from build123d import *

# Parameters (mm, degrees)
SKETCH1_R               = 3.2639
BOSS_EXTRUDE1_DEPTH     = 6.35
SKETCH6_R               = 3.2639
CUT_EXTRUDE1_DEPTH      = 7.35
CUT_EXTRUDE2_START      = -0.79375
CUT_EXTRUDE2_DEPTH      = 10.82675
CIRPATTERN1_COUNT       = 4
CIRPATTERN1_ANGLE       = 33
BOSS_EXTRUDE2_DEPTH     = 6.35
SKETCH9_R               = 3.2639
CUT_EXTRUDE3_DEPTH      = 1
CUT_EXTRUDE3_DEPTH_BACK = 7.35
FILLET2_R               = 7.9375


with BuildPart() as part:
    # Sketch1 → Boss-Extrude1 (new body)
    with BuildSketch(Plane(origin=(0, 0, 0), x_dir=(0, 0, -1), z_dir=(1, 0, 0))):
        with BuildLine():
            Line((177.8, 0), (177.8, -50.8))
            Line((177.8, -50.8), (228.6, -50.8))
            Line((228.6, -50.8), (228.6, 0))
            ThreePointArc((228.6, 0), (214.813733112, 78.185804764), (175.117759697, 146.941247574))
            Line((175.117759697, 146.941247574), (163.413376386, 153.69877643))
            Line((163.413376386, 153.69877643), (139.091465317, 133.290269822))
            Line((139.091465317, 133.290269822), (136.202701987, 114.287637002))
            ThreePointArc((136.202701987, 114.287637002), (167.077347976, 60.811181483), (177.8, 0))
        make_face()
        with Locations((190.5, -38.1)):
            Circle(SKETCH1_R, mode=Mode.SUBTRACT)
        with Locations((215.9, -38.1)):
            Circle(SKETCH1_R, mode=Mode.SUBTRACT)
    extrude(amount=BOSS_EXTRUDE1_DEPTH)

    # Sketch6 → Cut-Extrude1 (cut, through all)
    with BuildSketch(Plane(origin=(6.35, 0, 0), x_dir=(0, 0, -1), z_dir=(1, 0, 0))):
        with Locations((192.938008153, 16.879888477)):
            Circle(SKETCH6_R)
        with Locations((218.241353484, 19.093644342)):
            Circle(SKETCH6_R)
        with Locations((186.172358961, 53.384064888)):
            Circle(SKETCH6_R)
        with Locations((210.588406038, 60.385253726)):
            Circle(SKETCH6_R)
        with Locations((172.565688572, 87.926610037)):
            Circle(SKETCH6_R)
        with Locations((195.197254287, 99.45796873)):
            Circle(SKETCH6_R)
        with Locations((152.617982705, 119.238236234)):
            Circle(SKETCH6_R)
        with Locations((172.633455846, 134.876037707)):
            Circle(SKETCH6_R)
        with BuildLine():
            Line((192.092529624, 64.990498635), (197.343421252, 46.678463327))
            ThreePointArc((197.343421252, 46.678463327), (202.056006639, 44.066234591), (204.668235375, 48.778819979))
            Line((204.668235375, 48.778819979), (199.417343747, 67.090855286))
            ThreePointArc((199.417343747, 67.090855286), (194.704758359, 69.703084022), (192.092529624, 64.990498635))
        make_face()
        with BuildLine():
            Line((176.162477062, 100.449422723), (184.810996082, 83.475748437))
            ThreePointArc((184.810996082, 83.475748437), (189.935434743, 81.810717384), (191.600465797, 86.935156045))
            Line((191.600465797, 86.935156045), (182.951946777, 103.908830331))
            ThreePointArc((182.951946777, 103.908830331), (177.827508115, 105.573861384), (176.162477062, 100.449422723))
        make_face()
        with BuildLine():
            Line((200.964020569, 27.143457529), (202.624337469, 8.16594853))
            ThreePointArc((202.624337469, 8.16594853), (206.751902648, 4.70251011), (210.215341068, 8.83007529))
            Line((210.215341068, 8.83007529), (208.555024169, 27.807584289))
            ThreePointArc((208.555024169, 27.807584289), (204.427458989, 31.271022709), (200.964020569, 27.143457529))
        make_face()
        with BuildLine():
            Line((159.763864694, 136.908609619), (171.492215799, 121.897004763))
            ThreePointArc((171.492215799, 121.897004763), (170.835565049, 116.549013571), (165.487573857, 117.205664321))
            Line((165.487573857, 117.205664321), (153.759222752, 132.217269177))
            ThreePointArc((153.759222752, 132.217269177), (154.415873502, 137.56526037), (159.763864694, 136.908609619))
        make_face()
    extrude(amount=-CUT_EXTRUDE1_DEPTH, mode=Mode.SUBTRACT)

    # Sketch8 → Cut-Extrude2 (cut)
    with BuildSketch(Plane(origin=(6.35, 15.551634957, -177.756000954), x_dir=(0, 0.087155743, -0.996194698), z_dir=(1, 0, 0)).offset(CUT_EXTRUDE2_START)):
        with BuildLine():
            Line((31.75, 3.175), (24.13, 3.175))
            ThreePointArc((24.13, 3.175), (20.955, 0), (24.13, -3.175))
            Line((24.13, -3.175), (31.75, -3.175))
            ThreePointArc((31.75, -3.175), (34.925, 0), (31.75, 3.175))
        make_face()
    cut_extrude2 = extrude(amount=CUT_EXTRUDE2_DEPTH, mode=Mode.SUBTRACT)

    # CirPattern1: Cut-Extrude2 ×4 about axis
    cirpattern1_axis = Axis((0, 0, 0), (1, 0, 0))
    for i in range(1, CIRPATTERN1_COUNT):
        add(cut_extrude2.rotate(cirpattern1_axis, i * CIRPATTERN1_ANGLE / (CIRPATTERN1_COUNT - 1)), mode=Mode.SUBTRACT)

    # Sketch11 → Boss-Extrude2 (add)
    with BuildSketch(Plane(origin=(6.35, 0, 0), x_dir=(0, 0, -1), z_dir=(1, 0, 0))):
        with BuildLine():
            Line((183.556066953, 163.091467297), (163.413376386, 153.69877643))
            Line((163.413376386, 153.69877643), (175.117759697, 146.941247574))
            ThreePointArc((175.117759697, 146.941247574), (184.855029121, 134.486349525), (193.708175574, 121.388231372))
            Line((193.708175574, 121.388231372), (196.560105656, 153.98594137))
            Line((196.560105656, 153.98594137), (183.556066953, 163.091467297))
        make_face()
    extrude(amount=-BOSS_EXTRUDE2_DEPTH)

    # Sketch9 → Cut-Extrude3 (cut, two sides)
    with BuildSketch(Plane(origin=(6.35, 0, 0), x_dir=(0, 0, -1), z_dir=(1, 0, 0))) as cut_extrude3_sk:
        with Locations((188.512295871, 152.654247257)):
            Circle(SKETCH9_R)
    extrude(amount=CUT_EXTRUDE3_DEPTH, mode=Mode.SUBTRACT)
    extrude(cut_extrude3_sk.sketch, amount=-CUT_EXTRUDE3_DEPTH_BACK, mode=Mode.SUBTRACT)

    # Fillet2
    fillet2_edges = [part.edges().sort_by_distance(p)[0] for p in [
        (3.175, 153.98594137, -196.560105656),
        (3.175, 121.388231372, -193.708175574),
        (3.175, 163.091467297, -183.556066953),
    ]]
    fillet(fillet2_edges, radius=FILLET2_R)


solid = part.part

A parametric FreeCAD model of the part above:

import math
import FreeCAD as App
import Part
import Sketcher

V = App.Vector
Q = App.Units.Quantity


def edges_at(feature, points):
    """Names of the edges that pass closest to the given points."""
    edges = feature.Shape.Edges
    near = lambda p: min(range(len(edges)), key=lambda i: edges[i].distToShape(Part.Vertex(*p))[0])
    return sorted({f"Edge{near(p) + 1}" for p in points})

doc = App.newDocument("Part")
body = doc.addObject("PartDesign::Body", "Body")

sketch1 = doc.addObject("Sketcher::SketchObject", "Sketch")
body.addObject(sketch1)
sketch1.AttachmentSupport = (doc.YZ_Plane, [""])
sketch1.MapMode = "FlatFace"
sketch1.addGeometry([
    Part.LineSegment(V(0, -177.8, 0), V(-50.8, -177.8, 0)),
    Part.LineSegment(V(-50.8, -177.8, 0), V(-50.8, -228.6, 0)),
    Part.LineSegment(V(-50.8, -228.6, 0), V(0, -228.6, 0)),
    Part.ArcOfCircle(Part.Circle(V(0, 0, 0), V(0, 0, 1), 228.6), math.radians(-90), math.radians(-50)),
    Part.LineSegment(V(146.9, -175.1, 0), V(153.7, -163.4, 0)),
    Part.LineSegment(V(153.7, -163.4, 0), V(133.3, -139.1, 0)),
    Part.LineSegment(V(133.3, -139.1, 0), V(114.3, -136.2, 0)),
    Part.ArcOfCircle(Part.Circle(V(0, 0, 0), V(0, 0, 1), 177.8), math.radians(-90), math.radians(-50)),
    Part.Circle(V(-38.1, -190.5, 0), V(0, 0, 1), 3.3),
    Part.Circle(V(-38.1, -215.9, 0), V(0, 0, 1), 3.3),
], False)
sketch1.addConstraint([
    Sketcher.Constraint("Coincident", 0, 2, 1, 1),
    Sketcher.Constraint("Coincident", 1, 2, 2, 1),
    Sketcher.Constraint("Tangent", 2, 2, 3, 1),
    Sketcher.Constraint("Coincident", 3, 2, 4, 1),
    Sketcher.Constraint("Coincident", 4, 2, 5, 1),
    Sketcher.Constraint("Coincident", 5, 2, 6, 1),
    Sketcher.Constraint("Coincident", 6, 2, 7, 2),
    Sketcher.Constraint("Tangent", 7, 1, 0, 1),
    Sketcher.Constraint("Horizontal", 0),
    Sketcher.Constraint("Vertical", 1),
    Sketcher.Constraint("Horizontal", 2),
    Sketcher.Constraint("Coincident", 3, 3, -1, 1),
    Sketcher.Constraint("Coincident", 7, 3, -1, 1),
    Sketcher.Constraint("Equal", 8, 9),
    Sketcher.Constraint("Vertical", 8, 3, 9, 3),
    Sketcher.Constraint("Equal", 2, 1),
    Sketcher.Constraint("Radius", 3, Q("9 in")),
    Sketcher.Constraint("Radius", 7, Q("7 in")),
    Sketcher.Constraint("Diameter", 8, Q("0.257 in")),
    Sketcher.Constraint("Angle", 4, Q("60 deg")),
    Sketcher.Constraint("Angle", 5, Q("130 deg")),
    Sketcher.Constraint("DistanceY", 9, 3, 8, 3, Q("1 in")),
    Sketcher.Constraint("DistanceX", 8, 3, -1, 1, Q("1.5 in")),
    Sketcher.Constraint("DistanceY", 8, 3, -1, 1, Q("7.5 in")),
    Sketcher.Constraint("Distance", 5, Q("1.25 in")),
    Sketcher.Constraint("DistanceY", 3, 2, -1, 1, Q("6.8944 in")),
    Sketcher.Constraint("DistanceY", 6, 2, -1, 1, 136.202702),
    Sketcher.Constraint("DistanceX", -1, 1, 5, 2, 133.29027),
])
pad1 = doc.addObject("PartDesign::Pad", "Pad")
body.addObject(pad1)
pad1.Profile = sketch1
pad1.Length = Q("0.25 in")

sketch2 = doc.addObject("Sketcher::SketchObject", "Sketch001")
body.addObject(sketch2)
sketch2.AttachmentSupport = (doc.YZ_Plane, [""])
sketch2.MapMode = "FlatFace"
sketch2.AttachmentOffset = App.Placement(V(0, 0, 0.25 * 25.4), App.Rotation())
sketch2.addGeometry([
    Part.Circle(V(16.9, -192.9, 0), V(0, 0, 1), 3.3),
    Part.Circle(V(19.1, -218.2, 0), V(0, 0, 1), 3.3),
    Part.Circle(V(53.4, -186.2, 0), V(0, 0, 1), 3.3),
    Part.Circle(V(60.4, -210.6, 0), V(0, 0, 1), 3.3),
    Part.Circle(V(87.9, -172.6, 0), V(0, 0, 1), 3.3),
    Part.Circle(V(99.5, -195.2, 0), V(0, 0, 1), 3.3),
    Part.Circle(V(119.2, -152.6, 0), V(0, 0, 1), 3.3),
    Part.Circle(V(134.9, -172.6, 0), V(0, 0, 1), 3.3),
    Part.LineSegment(V(65, -192.1, 0), V(46.7, -197.3, 0)),
    Part.ArcOfCircle(Part.Circle(V(47.7, -201, 0), V(0, 0, 1), 3.8), math.radians(106), math.radians(286)),
    Part.LineSegment(V(48.8, -204.7, 0), V(67.1, -199.4, 0)),
    Part.ArcOfCircle(Part.Circle(V(66, -195.8, 0), V(0, 0, 1), 3.8), math.radians(-74), math.radians(106)),
    Part.LineSegment(V(100.4, -176.2, 0), V(83.5, -184.8, 0)),
    Part.ArcOfCircle(Part.Circle(V(85.2, -188.2, 0), V(0, 0, 1), 3.8), math.radians(117), math.radians(297)),
    Part.LineSegment(V(86.9, -191.6, 0), V(103.9, -183, 0)),
    Part.ArcOfCircle(Part.Circle(V(102.2, -179.6, 0), V(0, 0, 1), 3.8), math.radians(-63), math.radians(117)),
    Part.LineSegment(V(27.1, -201, 0), V(8.2, -202.6, 0)),
    Part.ArcOfCircle(Part.Circle(V(8.5, -206.4, 0), V(0, 0, 1), 3.8), math.radians(95), math.radians(275)),
    Part.LineSegment(V(8.8, -210.2, 0), V(27.8, -208.6, 0)),
    Part.ArcOfCircle(Part.Circle(V(27.5, -204.8, 0), V(0, 0, 1), 3.8), math.radians(-85), math.radians(95)),
    Part.LineSegment(V(121.9, -171.5, 0), V(136.9, -159.8, 0)),
    Part.ArcOfCircle(Part.Circle(V(134.6, -156.8, 0), V(0, 0, 1), 3.8), math.radians(-52), math.radians(128)),
    Part.LineSegment(V(132.2, -153.8, 0), V(117.2, -165.5, 0)),
    Part.ArcOfCircle(Part.Circle(V(119.6, -168.5, 0), V(0, 0, 1), 3.8), math.radians(128), math.radians(308)),
], False)
sketch2.addConstraint([
    Sketcher.Constraint("Tangent", 8, 2, 9, 1),
    Sketcher.Constraint("Tangent", 9, 2, 10, 1),
    Sketcher.Constraint("Tangent", 10, 2, 11, 1),
    Sketcher.Constraint("Tangent", 11, 2, 8, 1),
    Sketcher.Constraint("Tangent", 12, 2, 13, 1),
    Sketcher.Constraint("Tangent", 13, 2, 14, 1),
    Sketcher.Constraint("Tangent", 14, 2, 15, 1),
    Sketcher.Constraint("Tangent", 15, 2, 12, 1),
    Sketcher.Constraint("Tangent", 16, 2, 17, 1),
    Sketcher.Constraint("Tangent", 17, 2, 18, 1),
    Sketcher.Constraint("Tangent", 18, 2, 19, 1),
    Sketcher.Constraint("Tangent", 19, 2, 16, 1),
    Sketcher.Constraint("Tangent", 20, 2, 21, 1),
    Sketcher.Constraint("Tangent", 21, 2, 22, 1),
    Sketcher.Constraint("Tangent", 22, 2, 23, 1),
    Sketcher.Constraint("Tangent", 23, 2, 20, 1),
    Sketcher.Constraint("Equal", 0, 1),
    Sketcher.Constraint("Equal", 1, 2),
    Sketcher.Constraint("Equal", 2, 3),
    Sketcher.Constraint("Equal", 3, 4),
    Sketcher.Constraint("Equal", 4, 5),
    Sketcher.Constraint("Equal", 5, 6),
    Sketcher.Constraint("Equal", 6, 7),
    Sketcher.Constraint("Equal", 9, 11),
    Sketcher.Constraint("Equal", 11, 13),
    Sketcher.Constraint("Equal", 13, 15),
    Sketcher.Constraint("Equal", 15, 17),
    Sketcher.Constraint("Equal", 17, 19),
    Sketcher.Constraint("Equal", 19, 21),
    Sketcher.Constraint("Equal", 21, 23),
    Sketcher.Constraint("Equal", 10, 12),
    Sketcher.Constraint("Equal", 14, 16),
    Sketcher.Constraint("Equal", 18, 20),
    Sketcher.Constraint("Radius", 9, Q("0.15 in")),
    Sketcher.Constraint("Diameter", 0, Q("0.257 in")),
    Sketcher.Constraint("Angle", 8, Q("-164 deg")),
    Sketcher.Constraint("Angle", 12, Q("-153 deg")),
    Sketcher.Constraint("Angle", 16, Q("-175 deg")),
    Sketcher.Constraint("Angle", 20, Q("38 deg")),
    Sketcher.Constraint("Distance", 8, Q("0.75 in")),
    Sketcher.Constraint("DistanceX", 8, 2, 2, 3, Q("0.2640001 in")),
    Sketcher.Constraint("DistanceX", 3, 3, 10, 2, Q("0.2640001 in")),
    Sketcher.Constraint("DistanceY", 3, 3, 6, 3, Q("2.2823001 in")),
    Sketcher.Constraint("DistanceX", -1, 1, 11, 2, 64.990499),
    Sketcher.Constraint("DistanceY", 1, 3, 5, 3, 23.044099),
    Sketcher.Constraint("DistanceX", 6, 3, 7, 3, 15.637801),
    Sketcher.Constraint("DistanceY", 5, 3, 7, 3, 22.563798),
    Sketcher.Constraint("DistanceX", 3, 3, 13, 3, 24.820199),
    Sketcher.Constraint("DistanceX", 21, 3, 7, 3, 0.313098),
    Sketcher.Constraint("DistanceY", 19, 3, 8, 2, 7.416101),
    Sketcher.Constraint("DistanceX", -1, 1, 0, 3, 16.879888),
    Sketcher.Constraint("DistanceY", 0, 3, -1, 1, 192.938008),
    Sketcher.Constraint("DistanceY", 2, 3, -1, 1, 186.172359),
    Sketcher.Constraint("DistanceX", -1, 1, 4, 3, 87.92661),
    Sketcher.Constraint("DistanceY", 4, 3, -1, 1, 172.565689),
    Sketcher.Constraint("DistanceX", -1, 1, 5, 3, 99.457969),
    Sketcher.Constraint("DistanceY", 9, 3, -1, 1, 201.005828),
    Sketcher.Constraint("DistanceY", 13, 3, -1, 1, 188.205731),
    Sketcher.Constraint("DistanceX", -1, 1, 17, 3, 8.498012),
    Sketcher.Constraint("DistanceX", -1, 1, 21, 3, 134.562939),
    Sketcher.Constraint("DistanceX", 1, 3, 2, 3, 34.290421),
    Sketcher.Constraint("DistanceY", 3, 3, 5, 3, 15.391152),
    Sketcher.Constraint("DistanceY", 3, 3, 11, 3, 14.833469),
    Sketcher.Constraint("DistanceY", 21, 3, 6, 3, 4.143561),
])
pocket1 = doc.addObject("PartDesign::Pocket", "Pocket")
body.addObject(pocket1)
pocket1.Profile = sketch2
pocket1.Type = "ThroughAll"

sketch3 = doc.addObject("Sketcher::SketchObject", "Sketch002")
body.addObject(sketch3)
sketch3.AttachmentSupport = (doc.YZ_Plane, [""])
sketch3.MapMode = "FlatFace"
sketch3.AttachmentOffset = App.Placement(V(0, 0, 0.21875 * 25.4), App.Rotation())
sketch3.addGeometry([
    Part.LineSegment(V(21.5, -209.1, 0), V(20.8, -201.5, 0)),
    Part.ArcOfCircle(Part.Circle(V(17.7, -201.8, 0), V(0, 0, 1), 3.2), math.radians(5), math.radians(185)),
    Part.LineSegment(V(14.5, -202.1, 0), V(15.2, -209.7, 0)),
    Part.ArcOfCircle(Part.Circle(V(18.3, -209.4, 0), V(0, 0, 1), 3.2), math.radians(-175), math.radians(5)),
], False)
sketch3.addConstraint([
    Sketcher.Constraint("Tangent", 0, 2, 1, 1),
    Sketcher.Constraint("Tangent", 1, 2, 2, 1),
    Sketcher.Constraint("Tangent", 2, 2, 3, 1),
    Sketcher.Constraint("Tangent", 3, 2, 0, 1),
    Sketcher.Constraint("Equal", 1, 3),
    Sketcher.Constraint("Angle", 0, Q("95 deg")),
    Sketcher.Constraint("Radius", 1, Q("0.125 in")),
    Sketcher.Constraint("Distance", 0, Q("0.3 in")),
    Sketcher.Constraint("DistanceY", 1, 2, -1, 1, 202.070899),
    Sketcher.Constraint("DistanceX", -1, 1, 3, 3, 18.31883),
])
pocket2 = doc.addObject("PartDesign::Pocket", "Pocket001")
body.addObject(pocket2)
pocket2.Profile = sketch3
pocket2.Length = 10.82675
pocket2.Reversed = True
doc.recompute()

polarpattern = doc.addObject("PartDesign::PolarPattern", "PolarPattern")
body.addObject(polarpattern)
polarpattern.Originals = [pocket2]
polarpattern.Axis = (doc.X_Axis, [""])
polarpattern.Angle = 33
polarpattern.Occurrences = 4
body.Tip = polarpattern

sketch4 = doc.addObject("Sketcher::SketchObject", "Sketch003")
body.addObject(sketch4)
sketch4.AttachmentSupport = (doc.YZ_Plane, [""])
sketch4.MapMode = "FlatFace"
sketch4.AttachmentOffset = App.Placement(V(0, 0, 0.25 * 25.4), App.Rotation())
sketch4.addGeometry([
    Part.LineSegment(V(163, -184, 0), V(154, -163, 0)),
    Part.LineSegment(V(154, -163, 0), V(147, -175, 0)),
    Part.ArcOfCircle(Part.Circle(V(0, 0, 0), V(0, 0, 1), 229), math.radians(-57.93), math.radians(-50)),
    Part.LineSegment(V(121, -194, 0), V(154, -197, 0)),
    Part.LineSegment(V(154, -197, 0), V(163, -184, 0)),
], False)
sketch4.addConstraint([
    Sketcher.Constraint("Coincident", 0, 2, 1, 1),
    Sketcher.Constraint("Coincident", 1, 2, 2, 2),
    Sketcher.Constraint("Coincident", 2, 1, 3, 1),
    Sketcher.Constraint("Coincident", 3, 2, 4, 1),
    Sketcher.Constraint("Coincident", 4, 2, 0, 1),
    Sketcher.Constraint("Coincident", 2, 3, -1, 1),
    Sketcher.Constraint("Radius", 2, Q("9 in")),
    Sketcher.Constraint("Angle", 0, Q("115 deg")),
    Sketcher.Constraint("Angle", 1, Q("-120 deg")),
    Sketcher.Constraint("Angle", 3, Q("-5 deg")),
    Sketcher.Constraint("Angle", 4, Q("55 deg")),
    Sketcher.Constraint("Distance", 0, Q("0.875 in")),
    Sketcher.Constraint("Distance", 4, Q("0.625 in")),
    Sketcher.Constraint("DistanceY", 1, 2, -1, 1, Q("6.8944 in")),
    Sketcher.Constraint("DistanceX", -1, 1, 2, 1, 121.388231),
])
pad2 = doc.addObject("PartDesign::Pad", "Pad001")
body.addObject(pad2)
pad2.Profile = sketch4
pad2.Length = Q("0.25 in")
pad2.Reversed = True

sketch5 = doc.addObject("Sketcher::SketchObject", "Sketch004")
body.addObject(sketch5)
sketch5.AttachmentSupport = (doc.YZ_Plane, [""])
sketch5.MapMode = "FlatFace"
sketch5.AttachmentOffset = App.Placement(V(0, 0, 0.25 * 25.4), App.Rotation())
sketch5.addGeometry(Part.Circle(V(152.7, -188.5, 0), V(0, 0, 1), 3.3), False)
sketch5.addConstraint([
    Sketcher.Constraint("Diameter", 0, Q("0.257 in")),
    Sketcher.Constraint("DistanceX", -1, 1, 0, 3, 152.654247),
    Sketcher.Constraint("DistanceY", 0, 3, -1, 1, 188.512296),
])
pocket3 = doc.addObject("PartDesign::Pocket", "Pocket002")
body.addObject(pocket3)
pocket3.Profile = sketch5
pocket3.Type = "ThroughAll"
pocket3.Midplane = True
doc.recompute()

fillet = doc.addObject("PartDesign::Fillet", "Fillet")
body.addObject(fillet)
fillet.Base = (pocket3, edges_at(pocket3, [(3.175, 153.986, -196.56), (3.175, 121.388, -193.708), (3.175, 163.091, -183.556)]))
fillet.Radius = Q("0.3125 in")

doc.recompute()
